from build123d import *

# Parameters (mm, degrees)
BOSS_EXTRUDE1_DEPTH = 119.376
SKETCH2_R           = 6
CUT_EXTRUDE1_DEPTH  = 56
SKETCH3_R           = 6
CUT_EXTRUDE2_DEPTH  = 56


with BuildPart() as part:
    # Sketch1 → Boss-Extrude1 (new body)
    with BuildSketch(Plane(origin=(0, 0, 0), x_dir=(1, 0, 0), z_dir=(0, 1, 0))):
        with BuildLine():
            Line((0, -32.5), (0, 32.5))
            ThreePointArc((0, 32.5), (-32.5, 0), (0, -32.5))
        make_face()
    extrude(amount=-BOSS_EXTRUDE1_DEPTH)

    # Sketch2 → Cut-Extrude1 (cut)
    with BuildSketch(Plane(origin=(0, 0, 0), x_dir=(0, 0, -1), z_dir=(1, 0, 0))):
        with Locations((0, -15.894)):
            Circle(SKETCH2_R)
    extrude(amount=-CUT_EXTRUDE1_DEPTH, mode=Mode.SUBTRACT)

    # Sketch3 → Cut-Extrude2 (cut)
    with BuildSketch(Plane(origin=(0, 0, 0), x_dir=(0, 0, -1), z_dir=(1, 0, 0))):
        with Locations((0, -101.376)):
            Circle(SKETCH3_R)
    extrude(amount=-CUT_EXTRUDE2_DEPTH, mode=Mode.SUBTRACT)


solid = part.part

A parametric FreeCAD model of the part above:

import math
import FreeCAD as App
import Part
import Sketcher

V = App.Vector

doc = App.newDocument("Part")
body = doc.addObject("PartDesign::Body", "Body")

sketch1 = body.newObject("Sketcher::SketchObject", "Sketch")
sketch1.AttachmentSupport = (doc.getObject("XZ_Plane"), [""])
sketch1.MapMode = "FlatFace"
sketch1.addGeometry([
    Part.LineSegment(V(0, 32, 0), V(0, -32, 0)),
    Part.ArcOfCircle(Part.Circle(V(0, 0, 0), V(0, 0, 1), 32), math.radians(90), math.radians(270)),
], False)
sketch1.addConstraint([
    Sketcher.Constraint("Coincident", 0, 1, 1, 1),
    Sketcher.Constraint("Coincident", 1, 2, 0, 2),
    Sketcher.Constraint("Vertical", 0),
    Sketcher.Constraint("Coincident", 1, 3, -1, 1),
    Sketcher.Constraint("PointOnObject", 0, 1, -2),
    Sketcher.Constraint("Radius", 1, 32.5),
])
pad1 = body.newObject("PartDesign::Pad", "Pad")
pad1.Profile = sketch1
pad1.Length = 119.376

sketch2 = body.newObject("Sketcher::SketchObject", "Sketch001")
sketch2.AttachmentSupport = (doc.getObject("YZ_Plane"), [""])
sketch2.MapMode = "FlatFace"
sketch2.addGeometry(Part.Circle(V(-16, 0, 0), V(0, 0, 1), 6), False)
sketch2.addConstraint([
    Sketcher.Constraint("PointOnObject", 0, 3, -1),
    Sketcher.Constraint("Diameter", 0, 12.0),
    Sketcher.Constraint("DistanceX", 0, 3, -1, 1, 15.894),
])
pocket1 = body.newObject("PartDesign::Pocket", "Pocket")
pocket1.Profile = sketch2
pocket1.Length = 56

sketch3 = body.newObject("Sketcher::SketchObject", "Sketch002")
sketch3.AttachmentSupport = (doc.getObject("YZ_Plane"), [""])
sketch3.MapMode = "FlatFace"
sketch3.addGeometry(Part.Circle(V(-101, 0, 0), V(0, 0, 1), 6), False)
sketch3.addConstraint([
    Sketcher.Constraint("PointOnObject", 0, 3, -1),
    Sketcher.Constraint("Diameter", 0, 12.0),
    Sketcher.Constraint("DistanceX", 0, 3, -1, 1, 101.376),
])
pocket2 = body.newObject("PartDesign::Pocket", "Pocket001")
pocket2.Profile = sketch3
pocket2.Length = 56

doc.recompute()
